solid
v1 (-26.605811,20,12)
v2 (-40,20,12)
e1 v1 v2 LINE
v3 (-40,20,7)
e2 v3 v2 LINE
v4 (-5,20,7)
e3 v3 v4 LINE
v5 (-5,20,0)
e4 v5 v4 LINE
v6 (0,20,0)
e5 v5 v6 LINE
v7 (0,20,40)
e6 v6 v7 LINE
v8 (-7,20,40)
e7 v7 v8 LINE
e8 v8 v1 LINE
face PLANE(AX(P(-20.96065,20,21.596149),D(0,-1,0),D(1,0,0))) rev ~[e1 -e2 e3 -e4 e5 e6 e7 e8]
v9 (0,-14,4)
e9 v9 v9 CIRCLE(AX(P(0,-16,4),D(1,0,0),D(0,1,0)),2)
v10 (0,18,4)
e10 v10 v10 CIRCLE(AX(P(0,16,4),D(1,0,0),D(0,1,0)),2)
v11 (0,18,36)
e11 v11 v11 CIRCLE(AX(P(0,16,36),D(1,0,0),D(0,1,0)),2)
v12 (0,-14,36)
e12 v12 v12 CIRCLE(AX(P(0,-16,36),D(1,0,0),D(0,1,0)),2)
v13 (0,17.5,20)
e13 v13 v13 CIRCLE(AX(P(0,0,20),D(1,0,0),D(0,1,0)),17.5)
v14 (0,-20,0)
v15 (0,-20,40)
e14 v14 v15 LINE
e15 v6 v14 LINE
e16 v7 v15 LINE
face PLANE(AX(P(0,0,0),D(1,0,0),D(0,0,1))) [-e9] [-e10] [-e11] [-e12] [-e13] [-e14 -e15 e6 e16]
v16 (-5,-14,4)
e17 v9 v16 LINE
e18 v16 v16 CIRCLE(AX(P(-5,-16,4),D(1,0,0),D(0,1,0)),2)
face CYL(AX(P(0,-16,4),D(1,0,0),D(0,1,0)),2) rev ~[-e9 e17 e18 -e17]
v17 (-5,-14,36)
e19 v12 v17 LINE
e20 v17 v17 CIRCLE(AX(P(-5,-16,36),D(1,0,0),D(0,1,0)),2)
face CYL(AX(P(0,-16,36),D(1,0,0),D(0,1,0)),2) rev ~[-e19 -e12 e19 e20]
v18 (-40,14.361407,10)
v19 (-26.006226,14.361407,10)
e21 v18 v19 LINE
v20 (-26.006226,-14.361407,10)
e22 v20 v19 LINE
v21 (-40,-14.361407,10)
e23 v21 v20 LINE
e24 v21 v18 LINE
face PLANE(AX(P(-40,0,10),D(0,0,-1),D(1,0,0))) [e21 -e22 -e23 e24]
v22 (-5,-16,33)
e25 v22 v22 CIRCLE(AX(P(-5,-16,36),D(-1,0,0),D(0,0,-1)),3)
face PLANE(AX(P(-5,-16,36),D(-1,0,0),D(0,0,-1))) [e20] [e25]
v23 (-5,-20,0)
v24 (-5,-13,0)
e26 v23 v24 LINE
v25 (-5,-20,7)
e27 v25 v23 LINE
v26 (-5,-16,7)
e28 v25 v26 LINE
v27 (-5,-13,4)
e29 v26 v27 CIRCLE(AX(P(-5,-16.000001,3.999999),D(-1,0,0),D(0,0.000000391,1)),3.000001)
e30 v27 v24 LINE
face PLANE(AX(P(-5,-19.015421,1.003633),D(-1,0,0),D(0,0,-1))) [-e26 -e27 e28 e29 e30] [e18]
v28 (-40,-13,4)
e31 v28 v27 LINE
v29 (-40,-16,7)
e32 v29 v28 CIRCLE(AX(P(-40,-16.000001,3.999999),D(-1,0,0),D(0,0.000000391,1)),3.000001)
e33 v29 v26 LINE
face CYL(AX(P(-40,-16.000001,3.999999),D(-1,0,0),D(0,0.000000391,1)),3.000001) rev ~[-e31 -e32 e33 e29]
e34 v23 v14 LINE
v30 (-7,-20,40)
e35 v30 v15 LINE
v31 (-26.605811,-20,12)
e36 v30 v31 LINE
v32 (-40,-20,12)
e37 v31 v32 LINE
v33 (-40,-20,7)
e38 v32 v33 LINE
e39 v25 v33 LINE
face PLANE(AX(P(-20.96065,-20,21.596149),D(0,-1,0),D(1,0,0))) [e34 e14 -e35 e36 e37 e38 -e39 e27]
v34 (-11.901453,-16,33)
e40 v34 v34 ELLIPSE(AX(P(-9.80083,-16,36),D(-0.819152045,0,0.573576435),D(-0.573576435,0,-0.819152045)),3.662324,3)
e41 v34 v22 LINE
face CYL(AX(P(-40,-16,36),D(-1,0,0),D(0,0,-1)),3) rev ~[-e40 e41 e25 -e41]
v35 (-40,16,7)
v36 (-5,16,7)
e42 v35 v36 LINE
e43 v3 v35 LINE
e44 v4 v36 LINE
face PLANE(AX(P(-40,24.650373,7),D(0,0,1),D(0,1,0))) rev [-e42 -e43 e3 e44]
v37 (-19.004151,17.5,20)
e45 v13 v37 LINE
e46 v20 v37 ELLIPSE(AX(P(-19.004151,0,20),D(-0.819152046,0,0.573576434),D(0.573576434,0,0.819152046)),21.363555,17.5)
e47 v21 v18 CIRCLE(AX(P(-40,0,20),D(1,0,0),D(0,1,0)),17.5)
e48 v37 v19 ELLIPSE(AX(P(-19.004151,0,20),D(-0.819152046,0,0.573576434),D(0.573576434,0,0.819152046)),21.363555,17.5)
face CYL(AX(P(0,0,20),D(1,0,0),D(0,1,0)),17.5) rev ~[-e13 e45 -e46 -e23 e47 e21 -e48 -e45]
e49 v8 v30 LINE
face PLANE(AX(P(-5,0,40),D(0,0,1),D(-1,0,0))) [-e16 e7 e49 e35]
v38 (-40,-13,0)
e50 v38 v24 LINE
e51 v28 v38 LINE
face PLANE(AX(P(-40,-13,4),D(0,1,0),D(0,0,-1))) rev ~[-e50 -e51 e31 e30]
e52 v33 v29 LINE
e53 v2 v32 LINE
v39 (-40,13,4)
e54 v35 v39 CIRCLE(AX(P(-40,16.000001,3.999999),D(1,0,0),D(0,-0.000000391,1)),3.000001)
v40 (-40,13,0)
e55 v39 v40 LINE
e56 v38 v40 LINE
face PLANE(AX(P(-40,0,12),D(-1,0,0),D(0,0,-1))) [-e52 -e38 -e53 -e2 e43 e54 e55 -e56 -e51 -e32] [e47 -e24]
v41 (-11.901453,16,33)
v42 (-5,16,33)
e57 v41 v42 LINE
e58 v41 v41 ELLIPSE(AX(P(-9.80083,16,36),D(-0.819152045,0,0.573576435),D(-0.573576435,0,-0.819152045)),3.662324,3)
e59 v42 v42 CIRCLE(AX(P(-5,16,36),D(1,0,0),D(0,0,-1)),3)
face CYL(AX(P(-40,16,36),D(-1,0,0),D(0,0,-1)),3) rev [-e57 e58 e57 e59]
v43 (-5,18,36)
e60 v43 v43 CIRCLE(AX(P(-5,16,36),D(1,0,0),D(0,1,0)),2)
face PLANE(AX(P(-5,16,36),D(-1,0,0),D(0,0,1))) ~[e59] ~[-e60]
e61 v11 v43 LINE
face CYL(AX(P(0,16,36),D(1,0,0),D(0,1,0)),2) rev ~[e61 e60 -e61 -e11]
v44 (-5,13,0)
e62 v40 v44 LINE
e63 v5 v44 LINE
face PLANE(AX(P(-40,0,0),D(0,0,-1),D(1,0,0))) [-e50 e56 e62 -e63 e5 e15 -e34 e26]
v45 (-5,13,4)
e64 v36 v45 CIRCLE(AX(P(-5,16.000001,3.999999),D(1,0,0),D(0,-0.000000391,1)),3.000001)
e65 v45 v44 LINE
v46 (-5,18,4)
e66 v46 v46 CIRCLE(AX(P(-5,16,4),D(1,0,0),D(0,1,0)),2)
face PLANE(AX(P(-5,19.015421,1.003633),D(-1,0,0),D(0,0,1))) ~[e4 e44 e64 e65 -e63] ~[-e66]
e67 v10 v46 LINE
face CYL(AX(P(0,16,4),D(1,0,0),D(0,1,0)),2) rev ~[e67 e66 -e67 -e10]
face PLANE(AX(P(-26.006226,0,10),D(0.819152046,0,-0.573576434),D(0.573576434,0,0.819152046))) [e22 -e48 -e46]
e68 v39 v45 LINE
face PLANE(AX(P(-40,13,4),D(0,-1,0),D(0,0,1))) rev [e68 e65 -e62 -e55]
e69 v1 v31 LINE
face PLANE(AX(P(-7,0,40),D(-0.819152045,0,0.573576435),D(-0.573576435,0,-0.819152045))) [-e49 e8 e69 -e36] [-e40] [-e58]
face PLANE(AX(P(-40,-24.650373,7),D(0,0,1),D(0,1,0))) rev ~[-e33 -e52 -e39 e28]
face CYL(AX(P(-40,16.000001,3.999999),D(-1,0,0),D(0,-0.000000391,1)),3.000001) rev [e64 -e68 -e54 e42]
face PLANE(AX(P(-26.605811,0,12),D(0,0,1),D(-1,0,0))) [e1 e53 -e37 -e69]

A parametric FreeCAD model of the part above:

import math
import FreeCAD as App
import Part
import Sketcher
Q = App.Units.Quantity


def add_polygon(sketch, points):
    """Adds a closed chain of lines whose ends are joined by coincident constraints."""
    first, n = sketch.GeometryCount, len(points)
    for a, b in zip(points, points[1:] + points[:1]):
        sketch.addGeometry(Part.LineSegment(App.Vector(*a, 0), App.Vector(*b, 0)), False)
    for i in range(n):
        sketch.addConstraint(Sketcher.Constraint("Coincident", first + i, 2, first + (i + 1) % n, 1))

doc = App.newDocument("Part")
params = doc.addObject("Spreadsheet::Sheet", "Params")
for row, (alias, value) in enumerate([
    ("sketch1_width", "40 mm"),
    ("sketch1_width2", "5 mm"),
    ("sketch1_height", "10 mm"),
    ("pad1_length", "40 mm"),
    ("sketch2_diameter", "35 mm"),
    ("sketch3_width", "2 mm"),
    ("pad2_length", "40 mm"),
    ("sketch4_diameter", "6 mm"),
    ("pocket2_length", "35 mm"),
    ("sketch5_diameter", "4 mm"),
], start=1):
    params.set(f"A{row}", alias)
    params.set(f"B{row}", "=" + value)
    params.setAlias(f"B{row}", alias)

body = doc.addObject("PartDesign::Body", "Body")

sketch1 = body.newObject("Sketcher::SketchObject", "Sketch")
sketch1.AttachmentSupport = (doc.getObject("XZ_Plane"), [""])
sketch1.MapMode = "FlatFace"
add_polygon(sketch1, [(-40, 0), (0, 0), (0, 40), (-5, 40), (-26, 10), (-40, 10)])
sketch1.addConstraint(Sketcher.Constraint("Horizontal", 0))
sketch1.addConstraint(Sketcher.Constraint("Vertical", 1))
sketch1.addConstraint(Sketcher.Constraint("Horizontal", 2))
sketch1.addConstraint(Sketcher.Constraint("Horizontal", 4))
sketch1.addConstraint(Sketcher.Constraint("Vertical", 5))
sketch1.addConstraint(Sketcher.Constraint("Coincident", 0, 2, -1, 1))
sketch1.addConstraint(Sketcher.Constraint("Equal", 0, 1))
sketch1.addConstraint(Sketcher.Constraint("DistanceX", 0, 1, 0, 2, 40.0))
sketch1.addConstraint(Sketcher.Constraint("DistanceX", 2, 2, 2, 1, 5.0))
sketch1.addConstraint(Sketcher.Constraint("DistanceY", 5, 2, 5, 1, 10.0))
sketch1.addConstraint(Sketcher.Constraint("Angle", 3, Q("-125 deg")))
sketch1.setExpression("Constraints[13]", "Params.sketch1_width")
sketch1.setExpression("Constraints[14]", "Params.sketch1_width2")
sketch1.setExpression("Constraints[15]", "Params.sketch1_height")
pad1 = body.newObject("PartDesign::Pad", "Pad")
pad1.Profile = sketch1
pad1.setExpression("Length", "Params.pad1_length")
pad1.Midplane = True

sketch2 = body.newObject("Sketcher::SketchObject", "Sketch001")
sketch2.AttachmentSupport = (doc.getObject("YZ_Plane"), [""])
sketch2.MapMode = "FlatFace"
sketch2.addGeometry(Part.Circle(App.Vector(0, 20, 0), App.Vector(0, 0, 1), 18), False)
sketch2.addConstraint(Sketcher.Constraint("PointOnObject", 0, 3, -2))
sketch2.addConstraint(Sketcher.Constraint("Diameter", 0, 35.0))
sketch2.addConstraint(Sketcher.Constraint("DistanceY", -1, 1, 0, 3, 20.0))
sketch2.setExpression("Constraints[1]", "Params.sketch2_diameter")
pocket1 = body.newObject("PartDesign::Pocket", "Pocket")
pocket1.Profile = sketch2
pocket1.Type = "ThroughAll"

sketch3 = body.newObject("Sketcher::SketchObject", "Sketch002")
sketch3.AttachmentSupport = (doc.getObject("XZ_Plane"), [""])
sketch3.MapMode = "FlatFace"
add_polygon(sketch3, [(-5, 40), (-7, 40), (-26.6, 12), (-40, 12), (-40, 10), (-26, 10)])
sketch3.addConstraint(Sketcher.Constraint("Horizontal", 0))
sketch3.addConstraint(Sketcher.Constraint("Horizontal", 2))
sketch3.addConstraint(Sketcher.Constraint("Vertical", 3))
sketch3.addConstraint(Sketcher.Constraint("Horizontal", 4))
sketch3.addConstraint(Sketcher.Constraint("Parallel", 1, 5))
sketch3.addConstraint(Sketcher.Constraint("Equal", 0, 3))
sketch3.addConstraint(Sketcher.Constraint("DistanceX", 0, 2, 0, 1, 2.0))
sketch3.addConstraint(Sketcher.Constraint("Angle", 1, Q("-125 deg")))
sketch3.addConstraint(Sketcher.Constraint("DistanceX", 0, 2, -1, 1, 7.0))
sketch3.addConstraint(Sketcher.Constraint("DistanceY", -1, 1, 0, 2, 40.0))
sketch3.addConstraint(Sketcher.Constraint("DistanceY", -1, 1, 1, 2, 12.0))
sketch3.addConstraint(Sketcher.Constraint("DistanceX", 2, 2, -1, 1, 40.0))
sketch3.setExpression("Constraints[12]", "Params.sketch3_width")
pad2 = body.newObject("PartDesign::Pad", "Pad001")
pad2.Profile = sketch3
pad2.setExpression("Length", "Params.pad2_length")
pad2.Midplane = True

sketch4 = body.newObject("Sketcher::SketchObject", "Sketch003")
sketch4.AttachmentSupport = (doc.getObject("YZ_Plane"), [""])
sketch4.MapMode = "FlatFace"
sketch4.AttachmentOffset = App.Placement(App.Vector(0, 0, -40), App.Rotation())
sketch4.addGeometry(Part.Circle(App.Vector(-16, 36, 0), App.Vector(0, 0, 1), 3), False)
sketch4.addGeometry(Part.LineSegment(App.Vector(-13, 4, 0), App.Vector(-13, -4.6, 0)), False)
sketch4.addGeometry(Part.LineSegment(App.Vector(-13, -4.6, 0), App.Vector(-24.7, -4.6, 0)), False)
sketch4.addGeometry(Part.LineSegment(App.Vector(-24.7, -4.6, 0), App.Vector(-24.7, 7, 0)), False)
sketch4.addGeometry(Part.LineSegment(App.Vector(-24.7, 7, 0), App.Vector(-16, 7, 0)), False)
sketch4.addGeometry(Part.ArcOfCircle(Part.Circle(App.Vector(-16, 4, 0), App.Vector(0, 0, 1), 3), math.radians(0), math.radians(90)), False)
sketch4.addConstraint(Sketcher.Constraint("Coincident", 1, 2, 2, 1))
sketch4.addConstraint(Sketcher.Constraint("Coincident", 2, 2, 3, 1))
sketch4.addConstraint(Sketcher.Constraint("Coincident", 3, 2, 4, 1))
sketch4.addConstraint(Sketcher.Constraint("Tangent", 4, 2, 5, 2))
sketch4.addConstraint(Sketcher.Constraint("Tangent", 5, 1, 1, 1))
sketch4.addConstraint(Sketcher.Constraint("Vertical", 1))
sketch4.addConstraint(Sketcher.Constraint("Horizontal", 2))
sketch4.addConstraint(Sketcher.Constraint("Vertical", 3))
sketch4.addConstraint(Sketcher.Constraint("Horizontal", 4))
sketch4.addConstraint(Sketcher.Constraint("Equal", 0, 5))
sketch4.addConstraint(Sketcher.Constraint("Vertical", 0, 3, 5, 3))
sketch4.addConstraint(Sketcher.Constraint("Diameter", 0, 6.0))
sketch4.addConstraint(Sketcher.Constraint("DistanceX", 0, 3, -1, 1, 16.0))
sketch4.addConstraint(Sketcher.Constraint("DistanceY", -1, 1, 0, 3, 36.0))
sketch4.addConstraint(Sketcher.Constraint("DistanceY", -1, 1, 5, 3, 3.999999))
sketch4.addConstraint(Sketcher.Constraint("DistanceX", 2, 2, 2, 1, 11.650373))
sketch4.addConstraint(Sketcher.Constraint("DistanceY", 1, 2, 1, 1, 8.613364))
sketch4.setExpression("Constraints[11]", "Params.sketch4_diameter")
pocket2 = body.newObject("PartDesign::Pocket", "Pocket001")
pocket2.Profile = sketch4
pocket2.setExpression("Length", "Params.pocket2_length")
pocket2.Reversed = True
doc.recompute()

mirrored = body.newObject("PartDesign::Mirrored", "Mirrored")
mirrored.Originals = [pocket2]
mirrored.MirrorPlane = (doc.getObject("XZ_Plane"), [""])
body.Tip = mirrored

sketch5 = body.newObject("Sketcher::SketchObject", "Sketch004")
sketch5.AttachmentSupport = (doc.getObject("YZ_Plane"), [""])
sketch5.MapMode = "FlatFace"
sketch5.addGeometry(Part.Circle(App.Vector(16, 36, 0), App.Vector(0, 0, 1), 2), False)
sketch5.addGeometry(Part.Circle(App.Vector(16, 4, 0), App.Vector(0, 0, 1), 2), False)
sketch5.addGeometry(Part.Circle(App.Vector(-16, 4, 0), App.Vector(0, 0, 1), 2), False)
sketch5.addGeometry(Part.Circle(App.Vector(-16, 36, 0), App.Vector(0, 0, 1), 2), False)
sketch5.addConstraint(Sketcher.Constraint("Equal", 0, 1))
sketch5.addConstraint(Sketcher.Constraint("Equal", 1, 2))
sketch5.addConstraint(Sketcher.Constraint("Equal", 2, 3))
sketch5.addConstraint(Sketcher.Constraint("Symmetric", 1, 3, 2, 3, -2))
sketch5.addConstraint(Sketcher.Constraint("Symmetric", 0, 3, 3, 3, -2))
sketch5.addConstraint(Sketcher.Constraint("Vertical", 0, 3, 1, 3))
sketch5.addConstraint(Sketcher.Constraint("Diameter", 0, 4.0))
sketch5.addConstraint(Sketcher.Constraint("DistanceX", -1, 1, 0, 3, 16.0))
sketch5.addConstraint(Sketcher.Constraint("DistanceY", -1, 1, 0, 3, 36.0))
sketch5.addConstraint(Sketcher.Constraint("DistanceY", -1, 1, 1, 3, 4.0))
sketch5.setExpression("Constraints[6]", "Params.sketch5_diameter")
pocket3 = body.newObject("PartDesign::Pocket", "Pocket002")
pocket3.Profile = sketch5
pocket3.Type = "ThroughAll"

doc.recompute()
